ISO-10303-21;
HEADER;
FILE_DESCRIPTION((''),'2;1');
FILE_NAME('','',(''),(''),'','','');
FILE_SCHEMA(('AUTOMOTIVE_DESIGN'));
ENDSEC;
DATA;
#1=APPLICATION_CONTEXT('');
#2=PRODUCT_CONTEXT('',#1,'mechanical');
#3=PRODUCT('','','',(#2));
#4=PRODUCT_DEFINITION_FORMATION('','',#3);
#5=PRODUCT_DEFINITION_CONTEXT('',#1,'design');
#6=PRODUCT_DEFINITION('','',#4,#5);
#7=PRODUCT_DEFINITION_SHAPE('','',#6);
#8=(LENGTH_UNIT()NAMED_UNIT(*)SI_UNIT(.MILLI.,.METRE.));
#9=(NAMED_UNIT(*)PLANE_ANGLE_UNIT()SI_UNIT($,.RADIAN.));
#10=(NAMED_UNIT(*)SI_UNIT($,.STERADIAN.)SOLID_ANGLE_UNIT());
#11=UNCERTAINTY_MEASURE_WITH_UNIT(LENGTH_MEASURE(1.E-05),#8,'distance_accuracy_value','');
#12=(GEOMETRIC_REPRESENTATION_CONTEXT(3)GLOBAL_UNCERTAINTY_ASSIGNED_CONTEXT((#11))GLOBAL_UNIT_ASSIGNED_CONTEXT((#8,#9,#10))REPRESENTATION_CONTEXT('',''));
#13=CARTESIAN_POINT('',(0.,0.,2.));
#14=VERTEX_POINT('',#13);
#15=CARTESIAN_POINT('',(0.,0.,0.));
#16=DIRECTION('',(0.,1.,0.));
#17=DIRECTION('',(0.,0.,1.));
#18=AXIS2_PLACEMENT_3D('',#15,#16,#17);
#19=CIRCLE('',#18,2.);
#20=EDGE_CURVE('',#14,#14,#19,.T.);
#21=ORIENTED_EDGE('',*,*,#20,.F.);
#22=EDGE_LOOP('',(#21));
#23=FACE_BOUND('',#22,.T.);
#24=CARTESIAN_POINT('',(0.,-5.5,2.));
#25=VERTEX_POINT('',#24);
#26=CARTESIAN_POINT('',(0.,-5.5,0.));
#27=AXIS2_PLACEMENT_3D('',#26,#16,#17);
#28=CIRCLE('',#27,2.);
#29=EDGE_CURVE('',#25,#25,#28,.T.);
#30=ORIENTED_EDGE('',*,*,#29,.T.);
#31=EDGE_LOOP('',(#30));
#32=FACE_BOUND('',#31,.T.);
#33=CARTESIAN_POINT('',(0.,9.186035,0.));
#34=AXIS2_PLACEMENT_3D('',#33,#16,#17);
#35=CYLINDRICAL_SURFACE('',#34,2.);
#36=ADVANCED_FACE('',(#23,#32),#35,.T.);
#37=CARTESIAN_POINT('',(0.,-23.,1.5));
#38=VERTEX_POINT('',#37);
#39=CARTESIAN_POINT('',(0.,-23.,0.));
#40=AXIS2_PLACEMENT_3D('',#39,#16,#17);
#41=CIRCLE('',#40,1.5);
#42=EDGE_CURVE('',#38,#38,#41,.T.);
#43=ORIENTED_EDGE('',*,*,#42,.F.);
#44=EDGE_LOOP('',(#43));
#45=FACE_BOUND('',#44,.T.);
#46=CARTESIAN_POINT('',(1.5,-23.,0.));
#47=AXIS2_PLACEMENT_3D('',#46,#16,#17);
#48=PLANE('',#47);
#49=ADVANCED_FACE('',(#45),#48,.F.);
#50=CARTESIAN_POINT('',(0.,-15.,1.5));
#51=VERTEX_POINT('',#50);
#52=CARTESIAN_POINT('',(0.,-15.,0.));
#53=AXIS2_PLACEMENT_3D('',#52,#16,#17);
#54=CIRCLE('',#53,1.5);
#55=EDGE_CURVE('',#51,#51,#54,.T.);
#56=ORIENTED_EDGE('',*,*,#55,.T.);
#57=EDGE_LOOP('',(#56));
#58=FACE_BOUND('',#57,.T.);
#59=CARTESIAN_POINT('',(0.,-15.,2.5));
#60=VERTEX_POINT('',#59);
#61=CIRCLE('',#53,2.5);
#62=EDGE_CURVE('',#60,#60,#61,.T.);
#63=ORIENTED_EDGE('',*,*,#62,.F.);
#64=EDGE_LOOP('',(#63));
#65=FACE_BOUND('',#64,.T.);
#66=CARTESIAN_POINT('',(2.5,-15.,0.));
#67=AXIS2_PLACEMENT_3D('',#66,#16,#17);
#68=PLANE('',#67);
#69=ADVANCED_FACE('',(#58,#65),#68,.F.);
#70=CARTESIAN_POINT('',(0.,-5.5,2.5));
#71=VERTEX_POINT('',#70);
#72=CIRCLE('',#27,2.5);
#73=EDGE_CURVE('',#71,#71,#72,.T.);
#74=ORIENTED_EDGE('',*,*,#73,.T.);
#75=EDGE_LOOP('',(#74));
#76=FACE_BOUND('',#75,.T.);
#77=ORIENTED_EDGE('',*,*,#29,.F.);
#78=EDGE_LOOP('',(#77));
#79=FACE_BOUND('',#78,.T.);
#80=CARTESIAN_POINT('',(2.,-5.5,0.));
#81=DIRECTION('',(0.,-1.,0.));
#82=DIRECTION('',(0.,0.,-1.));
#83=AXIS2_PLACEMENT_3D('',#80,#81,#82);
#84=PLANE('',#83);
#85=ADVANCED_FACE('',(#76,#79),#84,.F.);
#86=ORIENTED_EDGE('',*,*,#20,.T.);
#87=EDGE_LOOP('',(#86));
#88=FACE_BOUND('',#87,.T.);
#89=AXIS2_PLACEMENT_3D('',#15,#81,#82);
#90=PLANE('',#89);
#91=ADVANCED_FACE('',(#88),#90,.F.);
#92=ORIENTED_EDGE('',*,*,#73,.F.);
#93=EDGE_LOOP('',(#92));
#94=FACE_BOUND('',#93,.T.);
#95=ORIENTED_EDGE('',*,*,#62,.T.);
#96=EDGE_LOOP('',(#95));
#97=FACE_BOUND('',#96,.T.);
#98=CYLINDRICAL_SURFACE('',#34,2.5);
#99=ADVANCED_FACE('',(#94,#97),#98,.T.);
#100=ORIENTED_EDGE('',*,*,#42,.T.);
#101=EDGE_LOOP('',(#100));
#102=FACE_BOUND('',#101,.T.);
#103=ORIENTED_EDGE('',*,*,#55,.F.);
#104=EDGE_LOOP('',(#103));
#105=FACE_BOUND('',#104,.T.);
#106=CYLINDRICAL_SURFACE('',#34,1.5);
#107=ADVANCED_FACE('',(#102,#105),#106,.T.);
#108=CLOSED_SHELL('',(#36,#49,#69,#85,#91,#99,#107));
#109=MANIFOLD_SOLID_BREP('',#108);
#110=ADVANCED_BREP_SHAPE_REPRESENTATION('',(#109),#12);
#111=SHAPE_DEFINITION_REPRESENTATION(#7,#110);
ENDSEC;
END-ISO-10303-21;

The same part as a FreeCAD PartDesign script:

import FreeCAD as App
import Part
import Sketcher
from FreeCAD import Vector
Q = App.Units.Quantity

doc = App.newDocument("Part")
body = doc.addObject("PartDesign::Body", "Body")

# Sketch on XY plane
sketch1 = body.newObject("Sketcher::SketchObject", "Sketch")
sketch1.AttachmentSupport = (doc.getObject("XY_Plane"), [""])
sketch1.MapMode = "FlatFace"
sketch1.addGeometry([
    Part.LineSegment(Vector(2, 0, 0), Vector(0, 0, 0)),  # 0
    Part.LineSegment(Vector(0, 0, 0), Vector(0, -23, 0)),  # 1
    Part.LineSegment(Vector(0, -23, 0), Vector(1.5, -23, 0)),  # 2
    Part.LineSegment(Vector(1.5, -23, 0), Vector(1.5, -15, 0)),  # 3
    Part.LineSegment(Vector(1.5, -15, 0), Vector(2.5, -15, 0)),  # 4
    Part.LineSegment(Vector(2.5, -15, 0), Vector(2.5, -5.5, 0)),  # 5
    Part.LineSegment(Vector(2.5, -5.5, 0), Vector(2, -5.5, 0)),  # 6
    Part.LineSegment(Vector(2, -5.5, 0), Vector(2, 0, 0)),  # 7
], False)
sketch1.addConstraint([
    Sketcher.Constraint("Coincident", 0, 2, 1, 1),
    Sketcher.Constraint("Coincident", 1, 2, 2, 1),
    Sketcher.Constraint("Coincident", 2, 2, 3, 1),
    Sketcher.Constraint("Coincident", 3, 2, 4, 1),
    Sketcher.Constraint("Coincident", 4, 2, 5, 1),
    Sketcher.Constraint("Coincident", 5, 2, 6, 1),
    Sketcher.Constraint("Coincident", 6, 2, 7, 1),
    Sketcher.Constraint("Coincident", 7, 2, 0, 1),
    Sketcher.Constraint("Horizontal", 0),
    Sketcher.Constraint("Vertical", 1),
    Sketcher.Constraint("Horizontal", 2),
    Sketcher.Constraint("Vertical", 3),
    Sketcher.Constraint("Horizontal", 4),
    Sketcher.Constraint("Vertical", 5),
    Sketcher.Constraint("Horizontal", 6),
    Sketcher.Constraint("Vertical", 7),
    Sketcher.Constraint("Coincident", 0, 2, -1, 1),
    Sketcher.Constraint("DistanceX", 0, 2, 0, 1, Q("2 mm")),
    Sketcher.Constraint("DistanceX", 4, 1, 4, 2, Q("1 mm")),
    Sketcher.Constraint("DistanceY", 1, 2, 1, 1, Q("23 mm")),
    Sketcher.Constraint("DistanceY", 3, 1, 3, 2, Q("8 mm")),
    Sketcher.Constraint("DistanceX", 2, 1, 2, 2, Q("1.5 mm")),
    Sketcher.Constraint("DistanceY", 5, 1, 5, 2, Q("9.5 mm")),
])
revolution = body.newObject("PartDesign::Revolution", "Revolution")
revolution.Profile = sketch1
revolution.ReferenceAxis = (sketch1, ["V_Axis"])
revolution.Angle = 360

doc.recompute()
